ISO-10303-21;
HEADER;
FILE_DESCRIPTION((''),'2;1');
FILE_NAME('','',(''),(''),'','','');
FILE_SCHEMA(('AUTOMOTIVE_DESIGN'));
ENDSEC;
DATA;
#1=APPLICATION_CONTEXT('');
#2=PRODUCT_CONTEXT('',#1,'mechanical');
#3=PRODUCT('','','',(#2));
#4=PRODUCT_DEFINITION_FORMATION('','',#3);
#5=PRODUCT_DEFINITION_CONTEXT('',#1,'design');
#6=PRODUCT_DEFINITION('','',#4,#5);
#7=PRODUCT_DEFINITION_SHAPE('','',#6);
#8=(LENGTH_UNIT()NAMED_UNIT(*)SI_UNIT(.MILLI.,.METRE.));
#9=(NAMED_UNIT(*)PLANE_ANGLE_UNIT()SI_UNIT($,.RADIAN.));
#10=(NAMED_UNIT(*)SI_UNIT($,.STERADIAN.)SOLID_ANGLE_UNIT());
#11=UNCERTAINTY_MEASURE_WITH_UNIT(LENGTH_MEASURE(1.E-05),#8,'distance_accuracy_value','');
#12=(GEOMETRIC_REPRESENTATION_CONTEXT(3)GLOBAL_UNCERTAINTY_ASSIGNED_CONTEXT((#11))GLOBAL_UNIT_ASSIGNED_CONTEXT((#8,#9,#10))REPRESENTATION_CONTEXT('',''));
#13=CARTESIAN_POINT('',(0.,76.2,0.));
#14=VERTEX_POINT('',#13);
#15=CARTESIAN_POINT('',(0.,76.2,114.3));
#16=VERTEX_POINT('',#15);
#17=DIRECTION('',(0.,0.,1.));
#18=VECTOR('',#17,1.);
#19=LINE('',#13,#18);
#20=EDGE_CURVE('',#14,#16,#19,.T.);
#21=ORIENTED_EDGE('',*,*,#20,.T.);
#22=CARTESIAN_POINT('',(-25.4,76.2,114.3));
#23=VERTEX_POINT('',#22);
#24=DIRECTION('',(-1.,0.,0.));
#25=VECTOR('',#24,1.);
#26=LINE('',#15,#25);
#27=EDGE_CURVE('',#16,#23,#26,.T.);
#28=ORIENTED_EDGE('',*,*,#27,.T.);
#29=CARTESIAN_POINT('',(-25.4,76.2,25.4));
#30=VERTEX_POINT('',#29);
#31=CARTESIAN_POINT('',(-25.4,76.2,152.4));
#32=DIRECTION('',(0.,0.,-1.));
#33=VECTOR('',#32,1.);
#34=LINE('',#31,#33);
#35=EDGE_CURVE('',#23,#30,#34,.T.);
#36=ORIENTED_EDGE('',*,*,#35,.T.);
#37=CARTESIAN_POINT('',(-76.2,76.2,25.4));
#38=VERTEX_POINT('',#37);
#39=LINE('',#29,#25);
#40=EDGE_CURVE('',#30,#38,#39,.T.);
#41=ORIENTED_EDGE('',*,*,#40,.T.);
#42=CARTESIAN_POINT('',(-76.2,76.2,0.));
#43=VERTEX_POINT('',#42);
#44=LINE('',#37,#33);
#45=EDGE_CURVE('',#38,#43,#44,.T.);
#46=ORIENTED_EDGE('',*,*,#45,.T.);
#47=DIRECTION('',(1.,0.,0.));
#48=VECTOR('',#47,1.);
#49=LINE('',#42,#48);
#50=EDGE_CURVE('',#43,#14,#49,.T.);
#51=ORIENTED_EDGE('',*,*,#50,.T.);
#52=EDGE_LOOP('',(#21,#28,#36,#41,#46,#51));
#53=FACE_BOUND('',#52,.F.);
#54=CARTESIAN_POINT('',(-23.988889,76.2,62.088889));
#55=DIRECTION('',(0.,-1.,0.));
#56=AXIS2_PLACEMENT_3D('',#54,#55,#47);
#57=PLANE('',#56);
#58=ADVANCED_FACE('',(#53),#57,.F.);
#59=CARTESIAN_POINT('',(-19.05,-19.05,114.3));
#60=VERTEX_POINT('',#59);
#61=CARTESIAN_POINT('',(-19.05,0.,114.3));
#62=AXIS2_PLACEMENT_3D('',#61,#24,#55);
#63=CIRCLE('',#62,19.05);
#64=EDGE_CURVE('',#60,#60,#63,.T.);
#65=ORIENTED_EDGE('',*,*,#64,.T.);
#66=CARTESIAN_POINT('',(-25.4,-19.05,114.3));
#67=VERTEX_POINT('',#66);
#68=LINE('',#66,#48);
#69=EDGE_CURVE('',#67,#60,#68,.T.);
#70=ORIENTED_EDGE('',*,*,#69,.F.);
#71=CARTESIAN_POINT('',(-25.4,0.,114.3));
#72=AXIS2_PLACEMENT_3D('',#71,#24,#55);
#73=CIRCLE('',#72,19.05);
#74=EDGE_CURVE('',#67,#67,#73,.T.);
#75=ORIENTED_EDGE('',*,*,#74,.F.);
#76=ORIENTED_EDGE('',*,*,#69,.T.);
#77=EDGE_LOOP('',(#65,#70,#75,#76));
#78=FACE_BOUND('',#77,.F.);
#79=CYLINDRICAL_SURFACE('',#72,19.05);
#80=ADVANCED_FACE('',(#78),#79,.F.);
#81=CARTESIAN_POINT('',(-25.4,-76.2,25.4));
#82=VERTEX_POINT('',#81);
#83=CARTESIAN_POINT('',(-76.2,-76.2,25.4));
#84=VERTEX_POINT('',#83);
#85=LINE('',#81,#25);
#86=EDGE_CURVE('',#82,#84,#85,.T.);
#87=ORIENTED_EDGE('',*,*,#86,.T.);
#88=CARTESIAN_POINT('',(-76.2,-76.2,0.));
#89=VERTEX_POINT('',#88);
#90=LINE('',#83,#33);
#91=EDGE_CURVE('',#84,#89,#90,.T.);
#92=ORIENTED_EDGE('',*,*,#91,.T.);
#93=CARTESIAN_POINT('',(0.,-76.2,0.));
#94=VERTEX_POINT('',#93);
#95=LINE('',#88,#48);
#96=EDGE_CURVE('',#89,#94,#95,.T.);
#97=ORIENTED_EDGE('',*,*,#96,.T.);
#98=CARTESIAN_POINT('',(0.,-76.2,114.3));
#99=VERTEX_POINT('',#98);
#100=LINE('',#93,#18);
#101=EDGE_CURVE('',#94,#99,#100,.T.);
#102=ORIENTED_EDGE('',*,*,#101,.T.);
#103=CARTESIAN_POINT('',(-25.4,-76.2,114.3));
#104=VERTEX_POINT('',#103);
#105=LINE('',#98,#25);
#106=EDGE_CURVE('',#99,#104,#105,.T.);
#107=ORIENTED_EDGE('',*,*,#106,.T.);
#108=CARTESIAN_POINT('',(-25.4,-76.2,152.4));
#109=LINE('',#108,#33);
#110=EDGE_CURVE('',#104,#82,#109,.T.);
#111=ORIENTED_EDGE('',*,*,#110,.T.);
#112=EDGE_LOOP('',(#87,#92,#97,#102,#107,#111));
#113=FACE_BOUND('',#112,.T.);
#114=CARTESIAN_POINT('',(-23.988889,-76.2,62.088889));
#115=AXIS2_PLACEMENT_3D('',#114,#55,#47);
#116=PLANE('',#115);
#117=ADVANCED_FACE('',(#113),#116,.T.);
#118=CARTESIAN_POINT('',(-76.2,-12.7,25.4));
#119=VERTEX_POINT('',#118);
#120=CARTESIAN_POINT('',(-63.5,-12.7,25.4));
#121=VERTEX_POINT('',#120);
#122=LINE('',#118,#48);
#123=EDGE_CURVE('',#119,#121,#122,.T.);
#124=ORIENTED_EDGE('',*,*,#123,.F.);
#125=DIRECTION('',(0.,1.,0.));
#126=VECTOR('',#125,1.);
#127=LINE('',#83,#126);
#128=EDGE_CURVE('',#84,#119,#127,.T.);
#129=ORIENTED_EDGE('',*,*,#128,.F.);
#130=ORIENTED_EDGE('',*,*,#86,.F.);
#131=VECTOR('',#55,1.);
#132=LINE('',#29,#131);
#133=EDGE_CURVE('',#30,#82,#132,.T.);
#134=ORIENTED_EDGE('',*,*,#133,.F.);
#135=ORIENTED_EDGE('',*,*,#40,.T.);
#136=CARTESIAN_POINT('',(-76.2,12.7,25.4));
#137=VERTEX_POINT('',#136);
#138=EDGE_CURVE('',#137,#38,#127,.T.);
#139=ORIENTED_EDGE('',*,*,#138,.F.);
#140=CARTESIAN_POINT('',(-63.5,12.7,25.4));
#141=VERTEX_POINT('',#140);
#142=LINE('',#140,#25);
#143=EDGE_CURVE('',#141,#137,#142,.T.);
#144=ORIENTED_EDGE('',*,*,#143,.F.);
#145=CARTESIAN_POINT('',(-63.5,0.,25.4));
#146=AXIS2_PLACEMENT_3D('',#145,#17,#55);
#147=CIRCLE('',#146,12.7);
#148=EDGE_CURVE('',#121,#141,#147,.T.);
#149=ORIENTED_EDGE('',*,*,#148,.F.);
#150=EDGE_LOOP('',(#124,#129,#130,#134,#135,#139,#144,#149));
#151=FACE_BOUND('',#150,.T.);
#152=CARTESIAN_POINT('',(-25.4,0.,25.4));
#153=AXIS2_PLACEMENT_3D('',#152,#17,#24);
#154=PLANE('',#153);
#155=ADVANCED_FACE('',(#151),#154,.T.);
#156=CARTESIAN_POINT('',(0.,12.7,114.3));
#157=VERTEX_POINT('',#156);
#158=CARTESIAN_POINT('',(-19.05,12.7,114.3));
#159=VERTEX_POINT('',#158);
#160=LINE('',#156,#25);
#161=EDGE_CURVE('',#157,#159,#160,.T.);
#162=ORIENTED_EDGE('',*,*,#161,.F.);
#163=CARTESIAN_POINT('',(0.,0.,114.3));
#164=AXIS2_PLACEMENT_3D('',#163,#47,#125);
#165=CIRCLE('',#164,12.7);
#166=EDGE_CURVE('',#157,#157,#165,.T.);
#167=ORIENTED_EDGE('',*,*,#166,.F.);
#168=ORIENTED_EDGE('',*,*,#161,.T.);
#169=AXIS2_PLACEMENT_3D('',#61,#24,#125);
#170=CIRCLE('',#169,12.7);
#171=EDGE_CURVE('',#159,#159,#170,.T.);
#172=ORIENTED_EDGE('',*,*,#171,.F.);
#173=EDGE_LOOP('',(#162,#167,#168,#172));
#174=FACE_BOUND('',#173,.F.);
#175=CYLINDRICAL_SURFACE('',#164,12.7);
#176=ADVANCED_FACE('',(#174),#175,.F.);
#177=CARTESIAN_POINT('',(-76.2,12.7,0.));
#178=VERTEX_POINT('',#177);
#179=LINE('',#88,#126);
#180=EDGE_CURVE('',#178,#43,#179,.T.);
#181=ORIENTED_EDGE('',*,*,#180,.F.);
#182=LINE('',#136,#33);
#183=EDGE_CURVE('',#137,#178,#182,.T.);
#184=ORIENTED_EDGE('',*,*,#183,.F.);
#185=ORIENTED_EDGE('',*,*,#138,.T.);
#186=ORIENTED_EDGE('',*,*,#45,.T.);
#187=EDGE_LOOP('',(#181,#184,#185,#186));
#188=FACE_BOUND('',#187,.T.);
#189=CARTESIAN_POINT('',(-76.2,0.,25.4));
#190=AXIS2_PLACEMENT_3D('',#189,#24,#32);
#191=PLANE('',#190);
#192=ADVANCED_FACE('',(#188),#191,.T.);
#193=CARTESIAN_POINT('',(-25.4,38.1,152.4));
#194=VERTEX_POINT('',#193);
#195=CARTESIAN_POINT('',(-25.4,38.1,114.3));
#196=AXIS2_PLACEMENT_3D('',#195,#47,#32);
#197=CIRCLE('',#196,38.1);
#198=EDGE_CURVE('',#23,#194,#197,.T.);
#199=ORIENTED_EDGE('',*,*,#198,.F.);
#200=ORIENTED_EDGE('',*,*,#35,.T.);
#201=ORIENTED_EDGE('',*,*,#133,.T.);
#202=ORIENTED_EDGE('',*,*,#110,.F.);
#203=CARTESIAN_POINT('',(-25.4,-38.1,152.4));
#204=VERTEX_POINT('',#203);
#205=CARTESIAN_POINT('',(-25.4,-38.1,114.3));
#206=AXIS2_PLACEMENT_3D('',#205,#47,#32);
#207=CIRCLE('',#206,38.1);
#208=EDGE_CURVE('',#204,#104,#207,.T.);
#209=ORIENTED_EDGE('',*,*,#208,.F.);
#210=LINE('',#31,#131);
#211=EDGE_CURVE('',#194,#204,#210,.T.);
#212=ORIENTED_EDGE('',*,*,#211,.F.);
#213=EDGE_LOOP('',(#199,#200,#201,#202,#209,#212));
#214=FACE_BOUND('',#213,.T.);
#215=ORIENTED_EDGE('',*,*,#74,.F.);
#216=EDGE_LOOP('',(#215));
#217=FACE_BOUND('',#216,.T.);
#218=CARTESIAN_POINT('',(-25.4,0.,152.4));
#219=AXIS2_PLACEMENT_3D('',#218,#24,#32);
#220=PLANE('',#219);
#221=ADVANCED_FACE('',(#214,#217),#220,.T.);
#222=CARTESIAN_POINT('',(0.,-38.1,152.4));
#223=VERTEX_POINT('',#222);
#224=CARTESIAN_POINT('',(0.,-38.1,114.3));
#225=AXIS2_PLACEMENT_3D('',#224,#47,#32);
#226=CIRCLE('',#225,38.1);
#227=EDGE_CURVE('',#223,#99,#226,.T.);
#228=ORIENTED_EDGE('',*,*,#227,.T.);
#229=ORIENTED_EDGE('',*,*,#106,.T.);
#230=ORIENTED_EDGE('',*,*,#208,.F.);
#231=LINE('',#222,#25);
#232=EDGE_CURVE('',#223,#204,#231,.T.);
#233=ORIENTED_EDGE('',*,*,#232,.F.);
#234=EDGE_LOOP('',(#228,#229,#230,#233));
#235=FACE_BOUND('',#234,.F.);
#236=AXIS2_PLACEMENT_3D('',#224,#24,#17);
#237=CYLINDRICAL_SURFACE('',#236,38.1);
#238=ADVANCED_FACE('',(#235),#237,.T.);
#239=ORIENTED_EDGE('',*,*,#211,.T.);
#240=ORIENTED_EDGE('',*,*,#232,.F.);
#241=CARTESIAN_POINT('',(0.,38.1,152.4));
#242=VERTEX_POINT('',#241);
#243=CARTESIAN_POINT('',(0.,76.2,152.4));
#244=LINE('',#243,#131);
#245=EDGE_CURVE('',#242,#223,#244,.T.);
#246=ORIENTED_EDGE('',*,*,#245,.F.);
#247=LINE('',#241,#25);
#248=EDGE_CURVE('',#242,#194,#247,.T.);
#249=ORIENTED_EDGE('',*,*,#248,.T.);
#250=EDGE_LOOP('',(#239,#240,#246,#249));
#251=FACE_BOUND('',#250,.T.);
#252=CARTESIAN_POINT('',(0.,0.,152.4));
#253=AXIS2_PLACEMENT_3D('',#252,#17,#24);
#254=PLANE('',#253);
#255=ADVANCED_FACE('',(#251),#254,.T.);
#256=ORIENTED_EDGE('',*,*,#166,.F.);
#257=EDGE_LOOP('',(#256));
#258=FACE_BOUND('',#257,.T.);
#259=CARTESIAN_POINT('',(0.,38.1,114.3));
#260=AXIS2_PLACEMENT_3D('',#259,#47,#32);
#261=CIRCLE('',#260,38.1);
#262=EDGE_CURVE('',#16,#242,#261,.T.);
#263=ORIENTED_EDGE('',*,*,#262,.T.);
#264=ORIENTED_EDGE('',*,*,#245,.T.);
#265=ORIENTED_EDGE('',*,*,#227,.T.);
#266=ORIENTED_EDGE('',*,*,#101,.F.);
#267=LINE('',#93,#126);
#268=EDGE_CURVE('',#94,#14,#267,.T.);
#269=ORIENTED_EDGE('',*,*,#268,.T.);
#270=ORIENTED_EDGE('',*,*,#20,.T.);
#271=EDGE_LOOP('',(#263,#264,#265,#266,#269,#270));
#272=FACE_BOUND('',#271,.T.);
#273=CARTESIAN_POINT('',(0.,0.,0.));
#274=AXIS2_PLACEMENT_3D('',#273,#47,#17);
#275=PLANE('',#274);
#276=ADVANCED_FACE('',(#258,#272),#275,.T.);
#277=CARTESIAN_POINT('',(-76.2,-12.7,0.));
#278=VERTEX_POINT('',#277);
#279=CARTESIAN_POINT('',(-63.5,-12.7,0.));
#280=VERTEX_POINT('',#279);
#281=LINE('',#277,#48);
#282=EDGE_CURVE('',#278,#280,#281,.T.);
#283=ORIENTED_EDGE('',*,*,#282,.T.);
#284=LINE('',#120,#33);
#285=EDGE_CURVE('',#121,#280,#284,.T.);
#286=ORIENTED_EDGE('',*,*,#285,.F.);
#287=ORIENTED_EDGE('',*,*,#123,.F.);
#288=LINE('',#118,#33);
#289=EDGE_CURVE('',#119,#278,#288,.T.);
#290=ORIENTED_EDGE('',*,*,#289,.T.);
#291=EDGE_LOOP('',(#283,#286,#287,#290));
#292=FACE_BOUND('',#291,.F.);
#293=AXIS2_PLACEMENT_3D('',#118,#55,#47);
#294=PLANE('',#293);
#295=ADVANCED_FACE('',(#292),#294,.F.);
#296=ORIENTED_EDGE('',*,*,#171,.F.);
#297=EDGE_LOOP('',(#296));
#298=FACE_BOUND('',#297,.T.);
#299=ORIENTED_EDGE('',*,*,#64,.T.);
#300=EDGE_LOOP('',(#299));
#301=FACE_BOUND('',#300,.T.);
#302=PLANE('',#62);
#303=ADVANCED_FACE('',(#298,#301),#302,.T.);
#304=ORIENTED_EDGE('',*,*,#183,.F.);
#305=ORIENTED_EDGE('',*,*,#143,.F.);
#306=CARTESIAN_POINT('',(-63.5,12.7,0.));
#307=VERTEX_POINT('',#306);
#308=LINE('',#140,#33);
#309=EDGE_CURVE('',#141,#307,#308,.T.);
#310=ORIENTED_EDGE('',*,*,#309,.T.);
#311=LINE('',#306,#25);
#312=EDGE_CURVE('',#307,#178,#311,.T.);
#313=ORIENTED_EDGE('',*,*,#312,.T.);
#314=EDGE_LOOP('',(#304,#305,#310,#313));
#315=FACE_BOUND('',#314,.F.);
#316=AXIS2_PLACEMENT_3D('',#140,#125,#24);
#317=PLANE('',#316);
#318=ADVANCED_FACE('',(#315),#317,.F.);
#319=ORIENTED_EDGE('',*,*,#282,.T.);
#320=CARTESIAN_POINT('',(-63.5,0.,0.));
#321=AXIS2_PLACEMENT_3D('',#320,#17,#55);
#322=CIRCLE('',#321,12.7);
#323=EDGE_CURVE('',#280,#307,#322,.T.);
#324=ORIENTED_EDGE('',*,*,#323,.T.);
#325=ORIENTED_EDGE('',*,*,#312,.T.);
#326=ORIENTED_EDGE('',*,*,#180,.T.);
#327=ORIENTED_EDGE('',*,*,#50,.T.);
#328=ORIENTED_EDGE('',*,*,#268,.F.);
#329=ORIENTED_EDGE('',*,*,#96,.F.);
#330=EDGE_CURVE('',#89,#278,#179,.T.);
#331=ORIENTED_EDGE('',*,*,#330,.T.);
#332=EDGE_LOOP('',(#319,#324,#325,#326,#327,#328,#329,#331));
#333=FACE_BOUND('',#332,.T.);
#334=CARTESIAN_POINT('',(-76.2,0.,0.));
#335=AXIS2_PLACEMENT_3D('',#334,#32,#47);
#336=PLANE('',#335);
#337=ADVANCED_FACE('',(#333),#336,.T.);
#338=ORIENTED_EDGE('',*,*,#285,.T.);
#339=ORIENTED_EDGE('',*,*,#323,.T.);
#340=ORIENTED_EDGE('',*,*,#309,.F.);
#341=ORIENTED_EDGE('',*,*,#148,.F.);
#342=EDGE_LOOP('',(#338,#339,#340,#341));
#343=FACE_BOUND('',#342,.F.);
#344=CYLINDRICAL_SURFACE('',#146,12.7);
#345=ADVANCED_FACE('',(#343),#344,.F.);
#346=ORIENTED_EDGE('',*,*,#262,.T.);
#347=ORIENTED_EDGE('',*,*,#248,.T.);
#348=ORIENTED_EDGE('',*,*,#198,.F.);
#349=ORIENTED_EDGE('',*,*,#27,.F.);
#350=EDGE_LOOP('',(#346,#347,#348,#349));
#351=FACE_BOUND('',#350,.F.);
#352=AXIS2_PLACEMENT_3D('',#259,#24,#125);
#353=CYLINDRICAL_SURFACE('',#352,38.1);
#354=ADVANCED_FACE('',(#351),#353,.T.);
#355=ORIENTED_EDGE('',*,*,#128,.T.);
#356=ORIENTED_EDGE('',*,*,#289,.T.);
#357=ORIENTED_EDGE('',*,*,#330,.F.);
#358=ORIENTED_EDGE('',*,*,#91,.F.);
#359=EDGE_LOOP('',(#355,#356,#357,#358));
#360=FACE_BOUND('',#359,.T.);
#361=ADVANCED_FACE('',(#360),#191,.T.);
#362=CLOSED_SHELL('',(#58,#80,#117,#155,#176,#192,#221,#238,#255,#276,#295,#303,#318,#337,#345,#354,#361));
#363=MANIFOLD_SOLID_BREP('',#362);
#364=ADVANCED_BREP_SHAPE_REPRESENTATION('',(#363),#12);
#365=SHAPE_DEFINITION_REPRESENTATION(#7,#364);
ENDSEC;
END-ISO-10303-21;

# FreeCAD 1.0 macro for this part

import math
import FreeCAD as App
import Part
import Sketcher

V = App.Vector
Q = App.Units.Quantity


def edges_at(feature, points):
    """Names of the edges that pass closest to the given points."""
    edges = feature.Shape.Edges
    near = lambda p: min(range(len(edges)), key=lambda i: edges[i].distToShape(Part.Vertex(*p))[0])
    return sorted({f"Edge{near(p) + 1}" for p in points})

doc = App.newDocument("Part")
body = doc.addObject("PartDesign::Body", "Body")

sketch1 = body.newObject("Sketcher::SketchObject", "Sketch")
sketch1.AttachmentSupport = (doc.getObject("XZ_Plane"), [""])
sketch1.MapMode = "FlatFace"
sketch1.addGeometry(Part.LineSegment(V(0, 0, 0), V(0, 152, 0)), False)
sketch1.addGeometry(Part.LineSegment(V(0, 152, 0), V(-25, 152, 0)), False)
sketch1.addGeometry(Part.LineSegment(V(-25, 152, 0), V(-25, 25, 0)), False)
sketch1.addGeometry(Part.LineSegment(V(-25, 25, 0), V(-76, 25, 0)), False)
sketch1.addGeometry(Part.LineSegment(V(-76, 25, 0), V(-76, 0, 0)), False)
sketch1.addGeometry(Part.LineSegment(V(-76, 0, 0), V(0, 0, 0)), False)
sketch1.addConstraint(Sketcher.Constraint("Coincident", 0, 2, 1, 1))
sketch1.addConstraint(Sketcher.Constraint("Coincident", 1, 2, 2, 1))
sketch1.addConstraint(Sketcher.Constraint("Coincident", 2, 2, 3, 1))
sketch1.addConstraint(Sketcher.Constraint("Coincident", 3, 2, 4, 1))
sketch1.addConstraint(Sketcher.Constraint("Coincident", 4, 2, 5, 1))
sketch1.addConstraint(Sketcher.Constraint("Coincident", 5, 2, 0, 1))
sketch1.addConstraint(Sketcher.Constraint("Vertical", 0))
sketch1.addConstraint(Sketcher.Constraint("Horizontal", 1))
sketch1.addConstraint(Sketcher.Constraint("Vertical", 2))
sketch1.addConstraint(Sketcher.Constraint("Horizontal", 3))
sketch1.addConstraint(Sketcher.Constraint("Vertical", 4))
sketch1.addConstraint(Sketcher.Constraint("Horizontal", 5))
sketch1.addConstraint(Sketcher.Constraint("Coincident", 5, 2, -1, 1))
sketch1.addConstraint(Sketcher.Constraint("Equal", 1, 4))
sketch1.addConstraint(Sketcher.Constraint("DistanceX", 1, 2, 1, 1, Q("1 in")))
sketch1.addConstraint(Sketcher.Constraint("DistanceX", 3, 2, 3, 1, Q("2 in")))
sketch1.addConstraint(Sketcher.Constraint("DistanceY", 0, 1, 0, 2, Q("6 in")))
pad1 = body.newObject("PartDesign::Pad", "Pad")
pad1.Profile = sketch1
pad1.Length = Q("6 in")
pad1.Midplane = True

sketch2 = body.newObject("Sketcher::SketchObject", "Sketch001")
sketch2.AttachmentSupport = (doc.getObject("YZ_Plane"), [""])
sketch2.MapMode = "FlatFace"
sketch2.addGeometry(Part.Circle(V(0, 114, 0), V(0, 0, 1), 13), False)
sketch2.addConstraint(Sketcher.Constraint("PointOnObject", 0, 3, -2))
sketch2.addConstraint(Sketcher.Constraint("Diameter", 0, Q("1 in")))
sketch2.addConstraint(Sketcher.Constraint("DistanceY", -1, 1, 0, 3, Q("4.5 in")))
pocket1 = body.newObject("PartDesign::Pocket", "Pocket")
pocket1.Profile = sketch2
pocket1.Type = "ThroughAll"

sketch3 = body.newObject("Sketcher::SketchObject", "Sketch002")
sketch3.AttachmentSupport = (doc.getObject("XY_Plane"), [""])
sketch3.MapMode = "FlatFace"
sketch3.AttachmentOffset = App.Placement(V(0, 0, 1 * 25.4), App.Rotation())
sketch3.addGeometry(Part.LineSegment(V(-76, -13, 0), V(-64, -13, 0)), False)
sketch3.addGeometry(Part.ArcOfCircle(Part.Circle(V(-64, 0, 0), V(0, 0, 1), 13), math.radians(-90), math.radians(90)), False)
sketch3.addGeometry(Part.LineSegment(V(-64, 13, 0), V(-76, 13, 0)), False)
sketch3.addGeometry(Part.LineSegment(V(-76, 13, 0), V(-76, -13, 0)), False)
sketch3.addConstraint(Sketcher.Constraint("Tangent", 0, 2, 1, 1))
sketch3.addConstraint(Sketcher.Constraint("Tangent", 1, 2, 2, 1))
sketch3.addConstraint(Sketcher.Constraint("Coincident", 2, 2, 3, 1))
sketch3.addConstraint(Sketcher.Constraint("Coincident", 3, 2, 0, 1))
sketch3.addConstraint(Sketcher.Constraint("Horizontal", 0))
sketch3.addConstraint(Sketcher.Constraint("Horizontal", 2))
sketch3.addConstraint(Sketcher.Constraint("Vertical", 3))
sketch3.addConstraint(Sketcher.Constraint("PointOnObject", 1, 3, -1))
sketch3.addConstraint(Sketcher.Constraint("Radius", 1, Q("0.5 in")))
sketch3.addConstraint(Sketcher.Constraint("DistanceX", 0, 1, 0, 2, Q("0.5 in")))
sketch3.addConstraint(Sketcher.Constraint("DistanceX", 2, 2, -1, 1, Q("3 in")))
pocket2 = body.newObject("PartDesign::Pocket", "Pocket001")
pocket2.Profile = sketch3
pocket2.Length = Q("1 in")
doc.recompute()

fillet = body.newObject("PartDesign::Fillet", "Fillet")
fillet.Base = (pocket2, edges_at(pocket2, [(-12.7, -76.2, 152.4), (-12.7, 76.2, 152.4)]))
fillet.Radius = Q("1.5 in")

sketch4 = body.newObject("Sketcher::SketchObject", "Sketch003")
sketch4.AttachmentSupport = (doc.getObject("YZ_Plane"), [""])
sketch4.MapMode = "FlatFace"
sketch4.AttachmentOffset = App.Placement(V(0, 0, -1 * 25.4), App.Rotation())
sketch4.addGeometry(Part.Circle(V(0, 114, 0), V(0, 0, 1), 19), False)
sketch4.addGeometry(Part.Circle(V(0, 114, 0), V(0, 0, 1), 13), False)
sketch4.addConstraint(Sketcher.Constraint("Coincident", 1, 3, 0, 3))
sketch4.addConstraint(Sketcher.Constraint("PointOnObject", 0, 3, -2))
sketch4.addConstraint(Sketcher.Constraint("Diameter", 1, Q("1 in")))
sketch4.addConstraint(Sketcher.Constraint("Diameter", 0, Q("1.5 in")))
sketch4.addConstraint(Sketcher.Constraint("DistanceY", -1, 1, 0, 3, Q("4.5 in")))
pocket3 = body.newObject("PartDesign::Pocket", "Pocket002")
pocket3.Profile = sketch4
pocket3.Length = Q("0.25 in")
pocket3.Reversed = True

doc.recompute()
